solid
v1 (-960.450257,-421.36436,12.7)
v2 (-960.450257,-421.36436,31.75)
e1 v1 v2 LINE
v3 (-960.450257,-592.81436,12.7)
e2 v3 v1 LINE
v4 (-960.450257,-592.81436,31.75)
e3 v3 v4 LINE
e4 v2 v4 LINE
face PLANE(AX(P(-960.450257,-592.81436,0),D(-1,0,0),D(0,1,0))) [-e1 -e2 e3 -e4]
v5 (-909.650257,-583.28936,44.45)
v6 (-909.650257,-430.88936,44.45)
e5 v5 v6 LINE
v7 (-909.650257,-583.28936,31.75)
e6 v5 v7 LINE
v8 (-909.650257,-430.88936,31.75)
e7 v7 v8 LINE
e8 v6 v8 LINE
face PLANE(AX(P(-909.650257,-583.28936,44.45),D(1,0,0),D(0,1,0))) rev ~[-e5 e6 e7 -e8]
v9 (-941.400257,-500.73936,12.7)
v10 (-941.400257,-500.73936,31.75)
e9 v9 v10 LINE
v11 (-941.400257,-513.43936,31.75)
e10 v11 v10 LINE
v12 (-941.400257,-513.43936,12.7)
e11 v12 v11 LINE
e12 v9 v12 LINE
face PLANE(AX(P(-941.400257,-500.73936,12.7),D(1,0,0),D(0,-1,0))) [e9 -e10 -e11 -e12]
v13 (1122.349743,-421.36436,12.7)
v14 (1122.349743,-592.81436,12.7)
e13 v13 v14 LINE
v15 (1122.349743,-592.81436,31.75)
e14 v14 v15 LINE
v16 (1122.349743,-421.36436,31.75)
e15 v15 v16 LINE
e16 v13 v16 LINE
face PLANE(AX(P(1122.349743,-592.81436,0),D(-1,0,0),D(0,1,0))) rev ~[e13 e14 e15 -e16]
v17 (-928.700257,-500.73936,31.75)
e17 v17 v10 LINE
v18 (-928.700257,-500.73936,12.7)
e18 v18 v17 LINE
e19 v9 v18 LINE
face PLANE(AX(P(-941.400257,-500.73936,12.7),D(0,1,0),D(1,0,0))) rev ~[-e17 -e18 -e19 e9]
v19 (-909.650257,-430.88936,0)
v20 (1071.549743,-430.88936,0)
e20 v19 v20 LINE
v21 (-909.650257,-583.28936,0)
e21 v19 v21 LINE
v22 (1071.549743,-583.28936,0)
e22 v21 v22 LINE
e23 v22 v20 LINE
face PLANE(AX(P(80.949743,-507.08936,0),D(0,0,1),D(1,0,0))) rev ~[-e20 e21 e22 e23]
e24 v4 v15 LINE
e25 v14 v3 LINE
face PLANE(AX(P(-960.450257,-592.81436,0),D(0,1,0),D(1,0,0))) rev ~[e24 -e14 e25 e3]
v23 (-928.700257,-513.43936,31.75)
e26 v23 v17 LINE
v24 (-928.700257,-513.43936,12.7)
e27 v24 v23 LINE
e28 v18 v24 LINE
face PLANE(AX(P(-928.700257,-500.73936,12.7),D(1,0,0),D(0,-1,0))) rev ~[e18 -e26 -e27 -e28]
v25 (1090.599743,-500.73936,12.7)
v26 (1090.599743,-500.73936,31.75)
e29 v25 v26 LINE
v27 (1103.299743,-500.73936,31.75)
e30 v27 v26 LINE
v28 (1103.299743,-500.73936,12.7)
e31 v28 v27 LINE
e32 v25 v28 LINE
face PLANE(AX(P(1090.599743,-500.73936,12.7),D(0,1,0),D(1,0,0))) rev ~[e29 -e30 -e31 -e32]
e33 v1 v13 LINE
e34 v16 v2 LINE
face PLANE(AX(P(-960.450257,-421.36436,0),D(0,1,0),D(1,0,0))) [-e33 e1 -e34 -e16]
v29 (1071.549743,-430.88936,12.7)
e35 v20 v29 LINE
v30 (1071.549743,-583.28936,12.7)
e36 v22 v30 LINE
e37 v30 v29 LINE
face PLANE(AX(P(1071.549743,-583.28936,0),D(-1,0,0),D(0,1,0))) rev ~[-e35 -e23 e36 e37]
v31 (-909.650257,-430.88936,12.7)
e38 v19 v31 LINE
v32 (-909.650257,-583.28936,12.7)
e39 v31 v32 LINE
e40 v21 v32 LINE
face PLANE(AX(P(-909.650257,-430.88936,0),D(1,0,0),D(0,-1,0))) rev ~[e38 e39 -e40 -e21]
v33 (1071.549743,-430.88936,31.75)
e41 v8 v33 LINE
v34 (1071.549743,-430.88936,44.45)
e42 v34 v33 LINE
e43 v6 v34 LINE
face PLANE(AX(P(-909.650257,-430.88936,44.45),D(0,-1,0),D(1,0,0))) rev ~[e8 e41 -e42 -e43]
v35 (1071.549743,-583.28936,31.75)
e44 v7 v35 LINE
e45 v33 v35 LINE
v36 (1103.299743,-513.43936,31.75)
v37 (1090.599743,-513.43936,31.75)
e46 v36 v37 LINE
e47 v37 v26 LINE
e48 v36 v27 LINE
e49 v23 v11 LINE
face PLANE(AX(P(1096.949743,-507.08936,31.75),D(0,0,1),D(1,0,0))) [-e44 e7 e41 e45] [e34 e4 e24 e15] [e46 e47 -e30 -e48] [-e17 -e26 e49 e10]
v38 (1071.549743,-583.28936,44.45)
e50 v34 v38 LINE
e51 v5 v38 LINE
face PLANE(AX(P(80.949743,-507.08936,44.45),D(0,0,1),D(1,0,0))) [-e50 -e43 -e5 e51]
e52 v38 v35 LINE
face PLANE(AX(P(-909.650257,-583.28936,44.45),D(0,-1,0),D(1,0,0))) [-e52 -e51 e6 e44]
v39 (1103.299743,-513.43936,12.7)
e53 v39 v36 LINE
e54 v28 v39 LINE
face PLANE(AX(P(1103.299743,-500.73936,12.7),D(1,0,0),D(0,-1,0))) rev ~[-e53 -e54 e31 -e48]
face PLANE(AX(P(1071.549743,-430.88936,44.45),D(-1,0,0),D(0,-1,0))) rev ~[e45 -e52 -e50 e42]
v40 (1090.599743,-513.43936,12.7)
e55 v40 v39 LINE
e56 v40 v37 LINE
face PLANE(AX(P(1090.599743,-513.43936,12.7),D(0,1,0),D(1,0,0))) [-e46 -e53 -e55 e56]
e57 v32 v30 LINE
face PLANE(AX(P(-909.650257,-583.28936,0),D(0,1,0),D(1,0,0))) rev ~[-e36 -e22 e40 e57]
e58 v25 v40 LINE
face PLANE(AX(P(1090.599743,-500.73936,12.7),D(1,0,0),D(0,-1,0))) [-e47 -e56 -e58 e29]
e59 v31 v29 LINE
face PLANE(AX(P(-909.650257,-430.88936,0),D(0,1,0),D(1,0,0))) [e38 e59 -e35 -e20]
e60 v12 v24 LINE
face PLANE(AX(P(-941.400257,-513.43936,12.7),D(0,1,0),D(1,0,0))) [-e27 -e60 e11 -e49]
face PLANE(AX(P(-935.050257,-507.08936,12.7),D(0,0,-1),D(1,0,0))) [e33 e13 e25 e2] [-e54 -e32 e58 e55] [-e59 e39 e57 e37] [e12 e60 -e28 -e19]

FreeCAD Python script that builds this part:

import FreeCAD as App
import Part
import Sketcher
from FreeCAD import Vector
Q = App.Units.Quantity

doc = App.newDocument("Part")
body = doc.addObject("PartDesign::Body", "Body")

sketch1 = body.newObject("Sketcher::SketchObject", "Sketch")
sketch1.AttachmentSupport = (doc.getObject("XY_Plane"), [""])
sketch1.MapMode = "FlatFace"
sketch1.addGeometry([
    Part.LineSegment(Vector(-960, -421, 0), Vector(-960, -593, 0)),
    Part.LineSegment(Vector(-960, -593, 0), Vector(1122, -593, 0)),
    Part.LineSegment(Vector(1122, -593, 0), Vector(1122, -421, 0)),
    Part.LineSegment(Vector(1122, -421, 0), Vector(-960, -421, 0)),
], False)
sketch1.addConstraint([
    Sketcher.Constraint("Coincident", 0, 2, 1, 1),
    Sketcher.Constraint("Coincident", 1, 2, 2, 1),
    Sketcher.Constraint("Coincident", 2, 2, 3, 1),
    Sketcher.Constraint("Coincident", 3, 2, 0, 1),
    Sketcher.Constraint("Vertical", 0),
    Sketcher.Constraint("Horizontal", 1),
    Sketcher.Constraint("Vertical", 2),
    Sketcher.Constraint("Horizontal", 3),
    Sketcher.Constraint("DistanceX", 1, 1, 1, 2, Q("82 in")),
    Sketcher.Constraint("DistanceY", 0, 2, 0, 1, Q("6.75 in")),
    Sketcher.Constraint("DistanceY", 0, 2, -1, 1, Q("592.81436 mm")),
    Sketcher.Constraint("DistanceX", 0, 2, -1, 1, Q("960.450257 mm")),
])
pad1 = body.newObject("PartDesign::Pad", "Pad")
pad1.Profile = sketch1
pad1.Length = Q("1.75 in")

sketch2 = body.newObject("Sketcher::SketchObject", "Sketch001")
sketch2.AttachmentSupport = (doc.getObject("XY_Plane"), [""])
sketch2.MapMode = "FlatFace"
sketch2.addGeometry([
    Part.LineSegment(Vector(-960, -593, 0), Vector(-960, -421, 0)),
    Part.LineSegment(Vector(-960, -421, 0), Vector(1122, -421, 0)),
    Part.LineSegment(Vector(1122, -421, 0), Vector(1122, -593, 0)),
    Part.LineSegment(Vector(1122, -593, 0), Vector(-960, -593, 0)),
    Part.LineSegment(Vector(1072, -583, 0), Vector(1072, -431, 0)),
    Part.LineSegment(Vector(1072, -431, 0), Vector(-910, -431, 0)),
    Part.LineSegment(Vector(-910, -431, 0), Vector(-910, -583, 0)),
    Part.LineSegment(Vector(-910, -583, 0), Vector(1072, -583, 0)),
], False)
sketch2.addConstraint([
    Sketcher.Constraint("Coincident", 0, 2, 1, 1),
    Sketcher.Constraint("Coincident", 1, 2, 2, 1),
    Sketcher.Constraint("Coincident", 2, 2, 3, 1),
    Sketcher.Constraint("Coincident", 3, 2, 0, 1),
    Sketcher.Constraint("Coincident", 4, 2, 5, 1),
    Sketcher.Constraint("Coincident", 5, 2, 6, 1),
    Sketcher.Constraint("Coincident", 6, 2, 7, 1),
    Sketcher.Constraint("Coincident", 7, 2, 4, 1),
    Sketcher.Constraint("Vertical", 0),
    Sketcher.Constraint("Horizontal", 1),
    Sketcher.Constraint("Vertical", 2),
    Sketcher.Constraint("Horizontal", 3),
    Sketcher.Constraint("Vertical", 4),
    Sketcher.Constraint("Horizontal", 5),
    Sketcher.Constraint("Vertical", 6),
    Sketcher.Constraint("Horizontal", 7),
    Sketcher.Constraint("DistanceX", 1, 1, 1, 2, Q("82 in")),
    Sketcher.Constraint("DistanceX", 5, 2, 5, 1, Q("78 in")),
    Sketcher.Constraint("DistanceY", 4, 1, 4, 2, Q("6 in")),
    Sketcher.Constraint("DistanceX", 4, 2, 1, 2, Q("2 in")),
    Sketcher.Constraint("DistanceY", 0, 1, 0, 2, Q("6.75 in")),
    Sketcher.Constraint("DistanceY", 4, 2, 1, 2, Q("0.375 in")),
    Sketcher.Constraint("DistanceY", 0, 2, -1, 1, Q("421.36436 mm")),
    Sketcher.Constraint("DistanceX", 0, 2, -1, 1, Q("960.450257 mm")),
])
pocket1 = body.newObject("PartDesign::Pocket", "Pocket")
pocket1.Profile = sketch2
pocket1.Length = Q("0.5 in")
pocket1.Reversed = True

sketch3 = body.newObject("Sketcher::SketchObject", "Sketch002")
sketch3.AttachmentSupport = (doc.getObject("XY_Plane"), [""])
sketch3.MapMode = "FlatFace"
sketch3.AttachmentOffset = App.Placement(Vector(0, 0, 1.75 * 25.4), App.Rotation())
sketch3.addGeometry([
    Part.LineSegment(Vector(1122, -421, 0), Vector(-960, -421, 0)),
    Part.LineSegment(Vector(-960, -421, 0), Vector(-960, -593, 0)),
    Part.LineSegment(Vector(-960, -593, 0), Vector(1122, -593, 0)),
    Part.LineSegment(Vector(1122, -593, 0), Vector(1122, -421, 0)),
    Part.LineSegment(Vector(-910, -583, 0), Vector(-910, -431, 0)),
    Part.LineSegment(Vector(-910, -431, 0), Vector(1072, -431, 0)),
    Part.LineSegment(Vector(1072, -431, 0), Vector(1072, -583, 0)),
    Part.LineSegment(Vector(1072, -583, 0), Vector(-910, -583, 0)),
], False)
sketch3.addConstraint([
    Sketcher.Constraint("Coincident", 0, 2, 1, 1),
    Sketcher.Constraint("Coincident", 1, 2, 2, 1),
    Sketcher.Constraint("Coincident", 2, 2, 3, 1),
    Sketcher.Constraint("Coincident", 3, 2, 0, 1),
    Sketcher.Constraint("Coincident", 4, 2, 5, 1),
    Sketcher.Constraint("Coincident", 5, 2, 6, 1),
    Sketcher.Constraint("Coincident", 6, 2, 7, 1),
    Sketcher.Constraint("Coincident", 7, 2, 4, 1),
    Sketcher.Constraint("Horizontal", 0),
    Sketcher.Constraint("Vertical", 1),
    Sketcher.Constraint("Horizontal", 2),
    Sketcher.Constraint("Vertical", 3),
    Sketcher.Constraint("Vertical", 4),
    Sketcher.Constraint("Horizontal", 5),
    Sketcher.Constraint("Vertical", 6),
    Sketcher.Constraint("Horizontal", 7),
    Sketcher.Constraint("DistanceX", 0, 2, 0, 1, Q("82 in")),
    Sketcher.Constraint("DistanceX", 5, 1, 5, 2, Q("78 in")),
    Sketcher.Constraint("DistanceY", 4, 1, 4, 2, Q("6 in")),
    Sketcher.Constraint("DistanceX", 0, 2, 4, 2, Q("2 in")),
    Sketcher.Constraint("DistanceY", 1, 2, 1, 1, Q("6.75 in")),
    Sketcher.Constraint("DistanceY", 4, 2, 0, 2, Q("0.375 in")),
    Sketcher.Constraint("DistanceY", 0, 2, -1, 1, Q("421.36436 mm")),
    Sketcher.Constraint("DistanceX", 0, 2, -1, 1, Q("960.450257 mm")),
])
pocket2 = body.newObject("PartDesign::Pocket", "Pocket001")
pocket2.Profile = sketch3
pocket2.Length = Q("0.5 in")

sketch4 = body.newObject("Sketcher::SketchObject", "Sketch003")
sketch4.AttachmentSupport = (doc.getObject("XY_Plane"), [""])
sketch4.MapMode = "FlatFace"
sketch4.AttachmentOffset = App.Placement(Vector(0, 0, 0.5 * 25.4), App.Rotation())
sketch4.addGeometry([
    Part.LineSegment(Vector(-941, -513, 0), Vector(-941, -501, 0)),
    Part.LineSegment(Vector(-941, -501, 0), Vector(-929, -501, 0)),
    Part.LineSegment(Vector(-929, -501, 0), Vector(-929, -513, 0)),
    Part.LineSegment(Vector(-929, -513, 0), Vector(-941, -513, 0)),
    Part.LineSegment(Vector(1091, -513, 0), Vector(1091, -501, 0)),
    Part.LineSegment(Vector(1091, -501, 0), Vector(1103, -501, 0)),
    Part.LineSegment(Vector(1103, -501, 0), Vector(1103, -513, 0)),
    Part.LineSegment(Vector(1103, -513, 0), Vector(1091, -513, 0)),
], False)
sketch4.addConstraint([
    Sketcher.Constraint("Coincident", 0, 2, 1, 1),
    Sketcher.Constraint("Coincident", 1, 2, 2, 1),
    Sketcher.Constraint("Coincident", 2, 2, 3, 1),
    Sketcher.Constraint("Coincident", 3, 2, 0, 1),
    Sketcher.Constraint("Coincident", 4, 2, 5, 1),
    Sketcher.Constraint("Coincident", 5, 2, 6, 1),
    Sketcher.Constraint("Coincident", 6, 2, 7, 1),
    Sketcher.Constraint("Coincident", 7, 2, 4, 1),
    Sketcher.Constraint("Vertical", 0),
    Sketcher.Constraint("Horizontal", 1),
    Sketcher.Constraint("Vertical", 2),
    Sketcher.Constraint("Horizontal", 3),
    Sketcher.Constraint("Vertical", 4),
    Sketcher.Constraint("Horizontal", 5),
    Sketcher.Constraint("Vertical", 6),
    Sketcher.Constraint("Horizontal", 7),
    Sketcher.Constraint("Horizontal", 1, 2, 4, 2),
    Sketcher.Constraint("Horizontal", 3, 2, 6, 2),
    Sketcher.Constraint("Equal", 3, 5),
    Sketcher.Constraint("Equal", 7, 0),
    Sketcher.Constraint("DistanceX", 1, 1, 1, 2, Q("0.5 in")),
    Sketcher.Constraint("DistanceX", 0, 2, 4, 2, Q("80 in")),
    Sketcher.Constraint("DistanceY", 0, 2, -1, 1, Q("500.73936 mm")),
    Sketcher.Constraint("DistanceX", 0, 2, -1, 1, Q("941.400257 mm")),
])
pocket3 = body.newObject("PartDesign::Pocket", "Pocket002")
pocket3.Profile = sketch4
pocket3.Type = "ThroughAll"
pocket3.Reversed = True

doc.recompute()
